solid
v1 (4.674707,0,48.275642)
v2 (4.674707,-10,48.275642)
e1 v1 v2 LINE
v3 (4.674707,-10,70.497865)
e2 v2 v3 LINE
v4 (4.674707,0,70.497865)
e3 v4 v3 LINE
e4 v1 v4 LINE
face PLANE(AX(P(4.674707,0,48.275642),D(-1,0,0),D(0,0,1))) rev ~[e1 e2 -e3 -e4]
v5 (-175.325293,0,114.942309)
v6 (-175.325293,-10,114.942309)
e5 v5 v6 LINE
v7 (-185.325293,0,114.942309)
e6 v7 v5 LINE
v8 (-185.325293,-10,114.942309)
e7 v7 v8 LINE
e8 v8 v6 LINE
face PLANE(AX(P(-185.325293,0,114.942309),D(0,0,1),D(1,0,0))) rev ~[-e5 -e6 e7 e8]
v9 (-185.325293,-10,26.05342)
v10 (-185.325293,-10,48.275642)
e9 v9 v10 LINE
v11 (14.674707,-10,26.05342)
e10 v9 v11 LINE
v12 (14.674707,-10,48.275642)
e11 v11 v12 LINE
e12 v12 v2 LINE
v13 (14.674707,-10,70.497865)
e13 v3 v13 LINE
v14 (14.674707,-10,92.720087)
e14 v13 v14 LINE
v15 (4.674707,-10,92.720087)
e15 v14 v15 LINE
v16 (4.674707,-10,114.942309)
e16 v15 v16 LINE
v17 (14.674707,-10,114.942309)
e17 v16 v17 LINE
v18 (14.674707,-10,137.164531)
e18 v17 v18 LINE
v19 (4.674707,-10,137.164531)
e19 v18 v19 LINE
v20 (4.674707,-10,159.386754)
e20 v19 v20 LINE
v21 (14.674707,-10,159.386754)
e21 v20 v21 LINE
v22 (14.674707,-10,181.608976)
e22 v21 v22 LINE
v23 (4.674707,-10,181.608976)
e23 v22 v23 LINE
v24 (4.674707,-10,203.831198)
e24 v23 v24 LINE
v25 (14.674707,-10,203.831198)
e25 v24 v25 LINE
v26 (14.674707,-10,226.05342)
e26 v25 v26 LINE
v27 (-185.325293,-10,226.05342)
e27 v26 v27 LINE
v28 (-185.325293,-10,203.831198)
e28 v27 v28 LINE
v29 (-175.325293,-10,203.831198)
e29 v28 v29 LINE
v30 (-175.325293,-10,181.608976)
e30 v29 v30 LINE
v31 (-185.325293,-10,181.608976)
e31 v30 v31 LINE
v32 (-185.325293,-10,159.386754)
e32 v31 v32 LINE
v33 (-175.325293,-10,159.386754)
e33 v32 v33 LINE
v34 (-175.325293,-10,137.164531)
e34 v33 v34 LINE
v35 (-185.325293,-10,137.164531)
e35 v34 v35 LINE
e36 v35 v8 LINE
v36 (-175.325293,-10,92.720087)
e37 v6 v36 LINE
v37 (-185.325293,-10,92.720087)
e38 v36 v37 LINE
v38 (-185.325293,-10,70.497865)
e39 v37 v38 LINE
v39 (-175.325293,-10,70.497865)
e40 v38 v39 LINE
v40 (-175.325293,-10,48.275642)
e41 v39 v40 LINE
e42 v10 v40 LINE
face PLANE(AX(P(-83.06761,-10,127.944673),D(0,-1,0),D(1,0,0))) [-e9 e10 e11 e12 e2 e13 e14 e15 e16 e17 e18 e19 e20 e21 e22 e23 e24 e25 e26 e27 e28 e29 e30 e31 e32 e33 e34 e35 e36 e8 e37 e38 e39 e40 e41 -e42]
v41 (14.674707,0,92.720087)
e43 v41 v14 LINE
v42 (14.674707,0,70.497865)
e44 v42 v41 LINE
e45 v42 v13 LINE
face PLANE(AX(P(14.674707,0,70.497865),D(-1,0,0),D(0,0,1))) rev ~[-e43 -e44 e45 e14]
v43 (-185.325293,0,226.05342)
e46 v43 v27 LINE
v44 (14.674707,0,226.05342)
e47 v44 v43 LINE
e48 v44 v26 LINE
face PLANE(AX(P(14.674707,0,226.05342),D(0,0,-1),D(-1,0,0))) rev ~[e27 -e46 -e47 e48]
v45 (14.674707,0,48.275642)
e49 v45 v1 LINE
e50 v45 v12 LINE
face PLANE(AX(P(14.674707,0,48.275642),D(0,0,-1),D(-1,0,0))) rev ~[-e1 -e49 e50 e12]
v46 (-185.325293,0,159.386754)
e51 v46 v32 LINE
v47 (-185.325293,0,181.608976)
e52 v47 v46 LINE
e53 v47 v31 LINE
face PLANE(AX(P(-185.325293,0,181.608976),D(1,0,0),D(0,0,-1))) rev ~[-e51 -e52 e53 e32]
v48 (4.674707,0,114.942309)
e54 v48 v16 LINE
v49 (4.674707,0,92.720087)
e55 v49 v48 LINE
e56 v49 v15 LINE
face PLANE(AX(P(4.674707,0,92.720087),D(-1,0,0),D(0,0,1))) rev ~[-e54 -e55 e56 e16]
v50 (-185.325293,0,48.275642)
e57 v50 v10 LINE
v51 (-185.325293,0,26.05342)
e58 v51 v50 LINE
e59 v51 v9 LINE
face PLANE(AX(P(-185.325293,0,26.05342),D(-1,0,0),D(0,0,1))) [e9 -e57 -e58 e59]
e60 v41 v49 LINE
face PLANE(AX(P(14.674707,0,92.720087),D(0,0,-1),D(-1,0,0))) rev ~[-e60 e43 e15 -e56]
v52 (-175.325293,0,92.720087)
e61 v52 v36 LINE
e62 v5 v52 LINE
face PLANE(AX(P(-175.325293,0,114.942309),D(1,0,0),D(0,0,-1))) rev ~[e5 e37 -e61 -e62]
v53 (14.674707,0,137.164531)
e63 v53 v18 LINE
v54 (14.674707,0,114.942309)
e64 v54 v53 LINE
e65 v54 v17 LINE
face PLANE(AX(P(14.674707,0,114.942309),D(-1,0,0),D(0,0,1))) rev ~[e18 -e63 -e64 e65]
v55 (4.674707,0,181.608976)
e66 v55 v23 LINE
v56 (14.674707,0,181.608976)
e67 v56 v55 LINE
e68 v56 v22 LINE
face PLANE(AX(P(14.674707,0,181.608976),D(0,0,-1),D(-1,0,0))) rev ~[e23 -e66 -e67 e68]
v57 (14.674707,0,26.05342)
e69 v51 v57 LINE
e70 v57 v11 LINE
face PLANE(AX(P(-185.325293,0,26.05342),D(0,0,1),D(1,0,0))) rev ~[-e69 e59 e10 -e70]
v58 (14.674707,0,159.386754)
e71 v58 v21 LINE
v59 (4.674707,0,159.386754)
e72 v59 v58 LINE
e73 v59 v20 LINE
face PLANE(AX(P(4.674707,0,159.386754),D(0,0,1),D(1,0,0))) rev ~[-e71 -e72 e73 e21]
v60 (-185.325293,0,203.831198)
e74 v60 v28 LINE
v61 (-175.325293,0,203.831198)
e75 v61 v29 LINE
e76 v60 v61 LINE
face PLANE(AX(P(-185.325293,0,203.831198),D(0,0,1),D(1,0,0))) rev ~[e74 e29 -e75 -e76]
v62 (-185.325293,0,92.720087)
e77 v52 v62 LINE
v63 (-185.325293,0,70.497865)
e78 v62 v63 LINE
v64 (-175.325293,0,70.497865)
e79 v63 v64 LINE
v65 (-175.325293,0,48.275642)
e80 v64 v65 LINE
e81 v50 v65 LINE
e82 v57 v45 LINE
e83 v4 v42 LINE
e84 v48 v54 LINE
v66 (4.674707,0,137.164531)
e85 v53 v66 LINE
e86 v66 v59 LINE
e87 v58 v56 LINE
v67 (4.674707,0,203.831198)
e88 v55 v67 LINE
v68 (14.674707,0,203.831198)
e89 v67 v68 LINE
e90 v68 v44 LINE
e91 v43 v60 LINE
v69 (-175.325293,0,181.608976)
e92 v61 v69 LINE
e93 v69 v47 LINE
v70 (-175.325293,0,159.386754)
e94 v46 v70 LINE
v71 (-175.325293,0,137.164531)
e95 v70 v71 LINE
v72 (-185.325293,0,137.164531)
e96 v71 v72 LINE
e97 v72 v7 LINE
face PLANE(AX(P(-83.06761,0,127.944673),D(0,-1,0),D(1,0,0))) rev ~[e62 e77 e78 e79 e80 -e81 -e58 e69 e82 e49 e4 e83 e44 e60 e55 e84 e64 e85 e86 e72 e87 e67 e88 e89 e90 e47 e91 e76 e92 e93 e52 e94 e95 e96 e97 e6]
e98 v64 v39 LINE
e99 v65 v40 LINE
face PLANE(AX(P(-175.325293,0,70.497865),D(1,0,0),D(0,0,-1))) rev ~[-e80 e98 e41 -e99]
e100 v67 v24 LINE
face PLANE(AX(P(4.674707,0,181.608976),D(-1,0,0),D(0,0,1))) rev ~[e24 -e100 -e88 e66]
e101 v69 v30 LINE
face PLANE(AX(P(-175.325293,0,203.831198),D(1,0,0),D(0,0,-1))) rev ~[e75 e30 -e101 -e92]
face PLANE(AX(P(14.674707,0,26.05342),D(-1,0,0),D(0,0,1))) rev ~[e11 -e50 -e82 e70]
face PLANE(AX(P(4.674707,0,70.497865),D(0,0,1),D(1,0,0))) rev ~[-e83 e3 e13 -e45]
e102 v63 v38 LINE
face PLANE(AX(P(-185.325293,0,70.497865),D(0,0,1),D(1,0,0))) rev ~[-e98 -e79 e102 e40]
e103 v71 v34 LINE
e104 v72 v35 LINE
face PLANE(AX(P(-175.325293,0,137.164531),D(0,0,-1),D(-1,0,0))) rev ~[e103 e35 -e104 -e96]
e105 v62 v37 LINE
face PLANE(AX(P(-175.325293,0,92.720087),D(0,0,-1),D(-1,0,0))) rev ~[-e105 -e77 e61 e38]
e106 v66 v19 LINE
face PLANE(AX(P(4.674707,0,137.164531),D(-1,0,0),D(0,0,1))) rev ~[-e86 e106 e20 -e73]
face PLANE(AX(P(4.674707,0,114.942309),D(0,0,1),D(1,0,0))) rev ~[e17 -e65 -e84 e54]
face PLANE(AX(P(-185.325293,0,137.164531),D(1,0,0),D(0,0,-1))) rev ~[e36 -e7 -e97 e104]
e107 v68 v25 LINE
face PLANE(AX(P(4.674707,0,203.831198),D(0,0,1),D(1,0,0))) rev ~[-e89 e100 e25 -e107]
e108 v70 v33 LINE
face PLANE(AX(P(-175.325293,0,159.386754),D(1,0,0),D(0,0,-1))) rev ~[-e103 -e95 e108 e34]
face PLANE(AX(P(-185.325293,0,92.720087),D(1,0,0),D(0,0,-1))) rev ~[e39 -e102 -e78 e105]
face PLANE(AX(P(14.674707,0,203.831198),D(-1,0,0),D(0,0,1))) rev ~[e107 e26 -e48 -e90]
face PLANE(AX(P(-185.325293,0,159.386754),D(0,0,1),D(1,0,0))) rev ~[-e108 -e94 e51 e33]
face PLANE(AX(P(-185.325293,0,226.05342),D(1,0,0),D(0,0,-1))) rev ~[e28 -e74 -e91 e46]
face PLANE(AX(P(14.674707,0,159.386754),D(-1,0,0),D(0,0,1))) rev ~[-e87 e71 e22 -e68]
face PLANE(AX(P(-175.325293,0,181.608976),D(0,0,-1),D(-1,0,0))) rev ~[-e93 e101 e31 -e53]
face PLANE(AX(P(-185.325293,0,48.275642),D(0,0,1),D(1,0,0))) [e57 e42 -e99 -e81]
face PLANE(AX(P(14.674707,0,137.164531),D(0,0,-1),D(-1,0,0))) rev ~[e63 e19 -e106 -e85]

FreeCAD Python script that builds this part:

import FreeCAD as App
import Part
import Sketcher


def add_polygon(sketch, points):
    """Adds a closed chain of lines whose ends are joined by coincident constraints."""
    first, n = sketch.GeometryCount, len(points)
    for a, b in zip(points, points[1:] + points[:1]):
        sketch.addGeometry(Part.LineSegment(App.Vector(*a, 0), App.Vector(*b, 0)), False)
    for i in range(n):
        sketch.addConstraint(Sketcher.Constraint("Coincident", first + i, 2, first + (i + 1) % n, 1))

doc = App.newDocument("Part")
body = doc.addObject("PartDesign::Body", "Body")

# Sketch on XZ plane
sketch1 = body.newObject("Sketcher::SketchObject", "Sketch")
sketch1.AttachmentSupport = (doc.getObject("XZ_Plane"), [""])
sketch1.MapMode = "FlatFace"
add_polygon(sketch1, [(15, 226), (-185, 226), (-185, 204), (-175, 204), (-175, 182), (-185, 182), (-185, 159), (-175, 159), (-175, 137), (-185, 137), (-185, 115), (-175, 115), (-175, 93), (-185, 93), (-185, 70), (-175, 70), (-175, 48), (-185, 48), (-185, 26), (15, 26), (15, 48), (5, 48), (5, 70), (15, 70), (15, 93), (5, 93), (5, 115), (15, 115), (15, 137), (5, 137), (5, 159), (15, 159), (15, 182), (5, 182), (5, 204), (15, 204)])  # lines 0-35
sketch1.addConstraint([
    Sketcher.Constraint("Horizontal", 0),
    Sketcher.Constraint("Vertical", 1),
    Sketcher.Constraint("Horizontal", 2),
    Sketcher.Constraint("Vertical", 3),
    Sketcher.Constraint("Horizontal", 4),
    Sketcher.Constraint("Vertical", 5),
    Sketcher.Constraint("Horizontal", 6),
    Sketcher.Constraint("Vertical", 7),
    Sketcher.Constraint("Horizontal", 8),
    Sketcher.Constraint("Vertical", 9),
    Sketcher.Constraint("Horizontal", 10),
    Sketcher.Constraint("Vertical", 11),
    Sketcher.Constraint("Horizontal", 12),
    Sketcher.Constraint("Vertical", 13),
    Sketcher.Constraint("Horizontal", 14),
    Sketcher.Constraint("Vertical", 15),
    Sketcher.Constraint("Horizontal", 16),
    Sketcher.Constraint("Vertical", 17),
    Sketcher.Constraint("Horizontal", 18),
    Sketcher.Constraint("Vertical", 19),
    Sketcher.Constraint("Horizontal", 20),
    Sketcher.Constraint("Vertical", 21),
    Sketcher.Constraint("Horizontal", 22),
    Sketcher.Constraint("Vertical", 23),
    Sketcher.Constraint("Horizontal", 24),
    Sketcher.Constraint("Vertical", 25),
    Sketcher.Constraint("Horizontal", 26),
    Sketcher.Constraint("Vertical", 27),
    Sketcher.Constraint("Horizontal", 28),
    Sketcher.Constraint("Vertical", 29),
    Sketcher.Constraint("Horizontal", 30),
    Sketcher.Constraint("Vertical", 31),
    Sketcher.Constraint("Horizontal", 32),
    Sketcher.Constraint("Vertical", 33),
    Sketcher.Constraint("Horizontal", 34),
    Sketcher.Constraint("Vertical", 35),
    Sketcher.Constraint("Horizontal", 16, 2, 19, 2),
    Sketcher.Constraint("Horizontal", 14, 2, 21, 2),
    Sketcher.Constraint("Horizontal", 12, 2, 23, 2),
    Sketcher.Constraint("Horizontal", 10, 2, 25, 2),
    Sketcher.Constraint("Horizontal", 8, 2, 27, 2),
    Sketcher.Constraint("Horizontal", 6, 2, 29, 2),
    Sketcher.Constraint("Horizontal", 4, 2, 31, 2),
    Sketcher.Constraint("Horizontal", 2, 2, 33, 2),
    Sketcher.Constraint("Vertical", 1, 2, 4, 2),
    Sketcher.Constraint("Vertical", 3, 2, 6, 2),
    Sketcher.Constraint("Vertical", 5, 2, 8, 2),
    Sketcher.Constraint("Vertical", 7, 2, 10, 2),
    Sketcher.Constraint("Vertical", 9, 2, 12, 2),
    Sketcher.Constraint("Vertical", 11, 2, 14, 2),
    Sketcher.Constraint("Vertical", 13, 2, 16, 2),
    Sketcher.Constraint("Vertical", 19, 2, 22, 2),
    Sketcher.Constraint("Vertical", 21, 2, 24, 2),
    Sketcher.Constraint("Vertical", 23, 2, 26, 2),
    Sketcher.Constraint("Vertical", 25, 2, 28, 2),
    Sketcher.Constraint("Vertical", 27, 2, 30, 2),
    Sketcher.Constraint("Vertical", 29, 2, 32, 2),
    Sketcher.Constraint("Vertical", 31, 2, 34, 2),
    Sketcher.Constraint("Equal", 16, 20),
    Sketcher.Constraint("Equal", 1, 3),
    Sketcher.Constraint("Equal", 3, 5),
    Sketcher.Constraint("Equal", 5, 7),
    Sketcher.Constraint("Equal", 7, 9),
    Sketcher.Constraint("Equal", 9, 11),
    Sketcher.Constraint("Equal", 11, 13),
    Sketcher.Constraint("Equal", 13, 15),
    Sketcher.Constraint("Equal", 15, 17),
    Sketcher.Constraint("DistanceX", 0, 2, 0, 1, 200.0),
    Sketcher.Constraint("DistanceX", 2, 1, 2, 2, 10.0),
    Sketcher.Constraint("DistanceY", 1, 2, 1, 1, 22.222222),
    Sketcher.Constraint("DistanceY", -1, 1, 1, 2, 203.831198),
    Sketcher.Constraint("DistanceX", 0, 2, -1, 1, 185.325293),
])
pad1 = body.newObject("PartDesign::Pad", "Pad")
pad1.Profile = sketch1
pad1.Length = 10

doc.recompute()
